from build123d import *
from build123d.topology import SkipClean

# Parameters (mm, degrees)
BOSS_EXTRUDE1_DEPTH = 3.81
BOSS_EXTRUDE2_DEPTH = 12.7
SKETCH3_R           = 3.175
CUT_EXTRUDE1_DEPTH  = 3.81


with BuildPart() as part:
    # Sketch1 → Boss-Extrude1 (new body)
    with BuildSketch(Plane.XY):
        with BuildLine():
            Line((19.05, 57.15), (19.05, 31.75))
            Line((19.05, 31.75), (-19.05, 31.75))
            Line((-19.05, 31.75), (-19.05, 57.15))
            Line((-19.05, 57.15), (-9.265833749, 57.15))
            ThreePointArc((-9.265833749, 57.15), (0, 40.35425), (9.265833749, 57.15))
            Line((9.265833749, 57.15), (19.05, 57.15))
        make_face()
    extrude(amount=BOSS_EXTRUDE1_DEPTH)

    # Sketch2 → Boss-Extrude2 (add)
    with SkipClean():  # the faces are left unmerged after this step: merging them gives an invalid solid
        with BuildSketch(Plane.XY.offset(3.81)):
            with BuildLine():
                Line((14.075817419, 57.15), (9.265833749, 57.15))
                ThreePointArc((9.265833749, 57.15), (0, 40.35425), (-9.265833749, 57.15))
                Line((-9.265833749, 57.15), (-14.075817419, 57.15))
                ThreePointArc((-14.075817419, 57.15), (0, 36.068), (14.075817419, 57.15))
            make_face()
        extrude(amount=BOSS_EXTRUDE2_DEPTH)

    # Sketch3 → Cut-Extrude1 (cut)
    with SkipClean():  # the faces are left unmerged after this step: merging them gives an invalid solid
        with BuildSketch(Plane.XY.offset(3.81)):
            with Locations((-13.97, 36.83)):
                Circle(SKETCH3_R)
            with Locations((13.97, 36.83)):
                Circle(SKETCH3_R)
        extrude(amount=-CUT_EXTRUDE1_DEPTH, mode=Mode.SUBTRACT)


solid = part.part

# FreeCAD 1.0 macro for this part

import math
import FreeCAD as App
import Part
import Sketcher

V = App.Vector
Q = App.Units.Quantity

doc = App.newDocument("Part")
body = doc.addObject("PartDesign::Body", "Body")

# Sketch on XY plane
sketch1 = doc.addObject("Sketcher::SketchObject", "Sketch")
body.addObject(sketch1)
sketch1.AttachmentSupport = (doc.XY_Plane, [""])
sketch1.MapMode = "FlatFace"
sketch1.addGeometry(Part.LineSegment(V(19.05, 31.75, 0), V(19.05, 57.15, 0)), False)
sketch1.addGeometry(Part.LineSegment(V(19.05, 57.15, 0), V(9.265834, 57.15, 0)), False)
sketch1.addGeometry(Part.ArcOfCircle(Part.Circle(V(0, 51.308, 0), V(0, 0, 1), 10.95375), math.radians(147.769047), math.radians(392.230953)), False)
sketch1.addGeometry(Part.LineSegment(V(-9.265834, 57.15, 0), V(-19.05, 57.15, 0)), False)
sketch1.addGeometry(Part.LineSegment(V(-19.05, 57.15, 0), V(-19.05, 31.75, 0)), False)
sketch1.addGeometry(Part.LineSegment(V(-19.05, 31.75, 0), V(19.05, 31.75, 0)), False)
sketch1.addConstraint(Sketcher.Constraint("Coincident", 0, 2, 1, 1))
sketch1.addConstraint(Sketcher.Constraint("Coincident", 1, 2, 2, 2))
sketch1.addConstraint(Sketcher.Constraint("Coincident", 2, 1, 3, 1))
sketch1.addConstraint(Sketcher.Constraint("Coincident", 3, 2, 4, 1))
sketch1.addConstraint(Sketcher.Constraint("Coincident", 4, 2, 5, 1))
sketch1.addConstraint(Sketcher.Constraint("Coincident", 5, 2, 0, 1))
sketch1.addConstraint(Sketcher.Constraint("Vertical", 0))
sketch1.addConstraint(Sketcher.Constraint("Horizontal", 1))
sketch1.addConstraint(Sketcher.Constraint("Horizontal", 3))
sketch1.addConstraint(Sketcher.Constraint("Vertical", 4))
sketch1.addConstraint(Sketcher.Constraint("Horizontal", 5))
sketch1.addConstraint(Sketcher.Constraint("Symmetric", 1, 2, 2, 1, -2))
sketch1.addConstraint(Sketcher.Constraint("Equal", 1, 3))
sketch1.addConstraint(Sketcher.Constraint("DistanceY", 0, 1, 0, 2, Q("1 in")))
sketch1.addConstraint(Sketcher.Constraint("DistanceX", 5, 1, 5, 2, Q("1.5 in")))
sketch1.addConstraint(Sketcher.Constraint("DistanceY", -1, 1, 2, 3, Q("2.02 in")))
sketch1.addConstraint(Sketcher.Constraint("DistanceY", -1, 1, 0, 2, Q("2.25 in")))
sketch1.addConstraint(Sketcher.Constraint("Radius", 2, Q("10.95375 mm")))
pad1 = doc.addObject("PartDesign::Pad", "Pad")
body.addObject(pad1)
pad1.Profile = sketch1
pad1.Length = Q("0.15 in")

# Sketch on XY plane
sketch2 = doc.addObject("Sketcher::SketchObject", "Sketch001")
body.addObject(sketch2)
sketch2.AttachmentSupport = (doc.XY_Plane, [""])
sketch2.MapMode = "FlatFace"
sketch2.AttachmentOffset = App.Placement(V(0, 0, 0.15 * 25.4), App.Rotation())
sketch2.addGeometry(Part.LineSegment(V(14.075817, 57.15, 0), V(9.265834, 57.15, 0)), False)
sketch2.addGeometry(Part.ArcOfCircle(Part.Circle(V(0, 51.308, 0), V(0, 0, 1), 10.95375), math.radians(147.769047), math.radians(392.230953)), False)
sketch2.addGeometry(Part.LineSegment(V(-9.265834, 57.15, 0), V(-14.075817, 57.15, 0)), False)
sketch2.addGeometry(Part.ArcOfCircle(Part.Circle(V(0, 51.308, 0), V(0, 0, 1), 15.24), math.radians(157.45969), math.radians(382.54031)), False)
sketch2.addConstraint(Sketcher.Constraint("Coincident", 0, 2, 1, 2))
sketch2.addConstraint(Sketcher.Constraint("Coincident", 1, 1, 2, 1))
sketch2.addConstraint(Sketcher.Constraint("Coincident", 2, 2, 3, 1))
sketch2.addConstraint(Sketcher.Constraint("Coincident", 3, 2, 0, 1))
sketch2.addConstraint(Sketcher.Constraint("Horizontal", 0))
sketch2.addConstraint(Sketcher.Constraint("Horizontal", 2))
sketch2.addConstraint(Sketcher.Constraint("Coincident", 3, 3, 1, 3))
sketch2.addConstraint(Sketcher.Constraint("Symmetric", 0, 2, 1, 1, -2))
sketch2.addConstraint(Sketcher.Constraint("Radius", 3, Q("0.6 in")))
sketch2.addConstraint(Sketcher.Constraint("DistanceY", -1, 1, 1, 3, Q("2.02 in")))
sketch2.addConstraint(Sketcher.Constraint("DistanceY", -1, 1, 0, 2, Q("2.25 in")))
sketch2.addConstraint(Sketcher.Constraint("Radius", 1, Q("10.95375 mm")))
pad2 = doc.addObject("PartDesign::Pad", "Pad001")
body.addObject(pad2)
pad2.Profile = sketch2
pad2.Length = Q("0.5 in")

# Sketch on XY plane
sketch3 = doc.addObject("Sketcher::SketchObject", "Sketch002")
body.addObject(sketch3)
sketch3.AttachmentSupport = (doc.XY_Plane, [""])
sketch3.MapMode = "FlatFace"
sketch3.AttachmentOffset = App.Placement(V(0, 0, 0.15 * 25.4), App.Rotation())
sketch3.addGeometry(Part.Circle(V(-13.97, 36.83, 0), V(0, 0, 1), 3.175), False)
sketch3.addGeometry(Part.Circle(V(13.97, 36.83, 0), V(0, 0, 1), 3.175), False)
sketch3.addConstraint(Sketcher.Constraint("Equal", 0, 1))
sketch3.addConstraint(Sketcher.Constraint("Symmetric", 0, 3, 1, 3, -2))
sketch3.addConstraint(Sketcher.Constraint("Diameter", 0, Q("0.25 in")))
sketch3.addConstraint(Sketcher.Constraint("DistanceX", 0, 3, 1, 3, Q("1.1 in")))
sketch3.addConstraint(Sketcher.Constraint("DistanceY", -1, 1, 0, 3, Q("1.45 in")))
pocket1 = doc.addObject("PartDesign::Pocket", "Pocket")
body.addObject(pocket1)
pocket1.Profile = sketch3
pocket1.Length = Q("0.15 in")

doc.recompute()
